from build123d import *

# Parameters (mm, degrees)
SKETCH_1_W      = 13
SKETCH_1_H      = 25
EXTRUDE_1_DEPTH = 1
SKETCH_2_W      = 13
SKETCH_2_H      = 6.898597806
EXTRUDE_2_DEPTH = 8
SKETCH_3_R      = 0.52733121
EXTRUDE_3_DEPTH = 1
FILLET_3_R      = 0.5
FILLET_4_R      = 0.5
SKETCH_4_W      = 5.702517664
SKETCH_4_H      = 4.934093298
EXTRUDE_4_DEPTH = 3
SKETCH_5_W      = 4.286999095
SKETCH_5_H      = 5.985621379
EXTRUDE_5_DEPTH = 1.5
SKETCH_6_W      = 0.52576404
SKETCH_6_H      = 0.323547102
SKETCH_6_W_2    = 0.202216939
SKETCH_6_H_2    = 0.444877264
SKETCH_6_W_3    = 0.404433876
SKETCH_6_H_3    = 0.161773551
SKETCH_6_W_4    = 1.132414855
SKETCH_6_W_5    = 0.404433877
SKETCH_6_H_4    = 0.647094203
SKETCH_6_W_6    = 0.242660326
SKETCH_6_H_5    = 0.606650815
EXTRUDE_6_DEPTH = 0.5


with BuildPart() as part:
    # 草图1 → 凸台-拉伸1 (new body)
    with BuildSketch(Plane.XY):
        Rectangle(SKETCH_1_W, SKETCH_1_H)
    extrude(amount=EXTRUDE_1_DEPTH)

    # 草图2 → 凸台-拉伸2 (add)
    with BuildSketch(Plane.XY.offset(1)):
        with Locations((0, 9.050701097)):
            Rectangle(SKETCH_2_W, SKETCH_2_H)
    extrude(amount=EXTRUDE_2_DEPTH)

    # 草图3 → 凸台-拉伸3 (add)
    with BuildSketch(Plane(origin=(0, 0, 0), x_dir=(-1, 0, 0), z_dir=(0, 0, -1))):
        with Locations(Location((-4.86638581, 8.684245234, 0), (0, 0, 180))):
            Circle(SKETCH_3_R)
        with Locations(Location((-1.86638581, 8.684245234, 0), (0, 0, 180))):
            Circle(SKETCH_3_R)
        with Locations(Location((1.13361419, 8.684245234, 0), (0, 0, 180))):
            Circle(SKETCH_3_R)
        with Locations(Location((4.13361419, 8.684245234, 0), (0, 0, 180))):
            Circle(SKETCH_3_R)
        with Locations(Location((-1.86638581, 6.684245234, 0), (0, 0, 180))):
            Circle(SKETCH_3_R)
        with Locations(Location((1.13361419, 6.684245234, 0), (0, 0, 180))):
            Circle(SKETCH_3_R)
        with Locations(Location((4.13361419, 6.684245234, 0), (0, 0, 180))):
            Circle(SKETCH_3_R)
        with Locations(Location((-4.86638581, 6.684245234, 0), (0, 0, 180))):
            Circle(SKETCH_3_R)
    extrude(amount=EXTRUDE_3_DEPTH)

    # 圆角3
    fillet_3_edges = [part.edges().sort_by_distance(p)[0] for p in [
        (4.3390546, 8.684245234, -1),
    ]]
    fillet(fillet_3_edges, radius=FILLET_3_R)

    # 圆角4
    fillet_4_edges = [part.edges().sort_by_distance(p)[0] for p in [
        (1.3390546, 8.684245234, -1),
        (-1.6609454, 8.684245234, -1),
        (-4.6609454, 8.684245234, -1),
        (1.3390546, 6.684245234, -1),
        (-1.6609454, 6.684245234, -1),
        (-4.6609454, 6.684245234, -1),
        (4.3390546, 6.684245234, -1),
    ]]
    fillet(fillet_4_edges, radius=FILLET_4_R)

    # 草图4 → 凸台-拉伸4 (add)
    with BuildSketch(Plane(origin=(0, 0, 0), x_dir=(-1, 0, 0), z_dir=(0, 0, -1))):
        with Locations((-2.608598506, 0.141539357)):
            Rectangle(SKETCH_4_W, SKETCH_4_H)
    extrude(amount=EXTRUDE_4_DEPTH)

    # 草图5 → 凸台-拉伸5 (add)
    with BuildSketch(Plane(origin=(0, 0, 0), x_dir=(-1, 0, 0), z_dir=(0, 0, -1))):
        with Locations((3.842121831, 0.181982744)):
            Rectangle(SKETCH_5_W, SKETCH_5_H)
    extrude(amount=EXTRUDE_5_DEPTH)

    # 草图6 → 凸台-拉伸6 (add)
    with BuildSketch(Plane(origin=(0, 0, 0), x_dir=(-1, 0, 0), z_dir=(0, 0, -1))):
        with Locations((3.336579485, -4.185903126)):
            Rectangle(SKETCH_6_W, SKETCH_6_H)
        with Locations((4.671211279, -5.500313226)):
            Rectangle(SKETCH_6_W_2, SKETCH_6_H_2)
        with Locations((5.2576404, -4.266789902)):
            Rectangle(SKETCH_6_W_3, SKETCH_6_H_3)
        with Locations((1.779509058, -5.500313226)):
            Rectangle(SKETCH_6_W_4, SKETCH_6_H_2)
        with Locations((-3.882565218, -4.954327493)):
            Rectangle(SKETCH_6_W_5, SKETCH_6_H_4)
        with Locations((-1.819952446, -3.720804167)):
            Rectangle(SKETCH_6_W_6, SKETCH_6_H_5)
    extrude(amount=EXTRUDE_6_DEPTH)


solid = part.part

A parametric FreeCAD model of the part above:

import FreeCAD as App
import Part
import Sketcher

V = App.Vector


def edges_at(feature, points):
    """Names of the edges that pass closest to the given points."""
    edges = feature.Shape.Edges
    near = lambda p: min(range(len(edges)), key=lambda i: edges[i].distToShape(Part.Vertex(*p))[0])
    return sorted({f"Edge{near(p) + 1}" for p in points})


def add_polygon(sketch, points):
    """Adds a closed chain of lines whose ends are joined by coincident constraints."""
    first, n = sketch.GeometryCount, len(points)
    for a, b in zip(points, points[1:] + points[:1]):
        sketch.addGeometry(Part.LineSegment(App.Vector(*a, 0), App.Vector(*b, 0)), False)
    for i in range(n):
        sketch.addConstraint(Sketcher.Constraint("Coincident", first + i, 2, first + (i + 1) % n, 1))

doc = App.newDocument("Part")
body = doc.addObject("PartDesign::Body", "Body")

sketch1 = body.newObject("Sketcher::SketchObject", "Sketch")
sketch1.AttachmentSupport = (doc.getObject("XY_Plane"), [""])
sketch1.MapMode = "FlatFace"
add_polygon(sketch1, [(-6, 12), (-6, -12), (6, -12), (6, 12)])
sketch1.addConstraint(Sketcher.Constraint("Vertical", 0))
sketch1.addConstraint(Sketcher.Constraint("Horizontal", 1))
sketch1.addConstraint(Sketcher.Constraint("Vertical", 2))
sketch1.addConstraint(Sketcher.Constraint("Horizontal", 3))
sketch1.addConstraint(Sketcher.Constraint("Symmetric", 0, 2, 2, 2, -1, 1))
sketch1.addConstraint(Sketcher.Constraint("DistanceX", 1, 1, 1, 2, 13.0))
sketch1.addConstraint(Sketcher.Constraint("DistanceY", 0, 2, 0, 1, 25.0))
pad1 = body.newObject("PartDesign::Pad", "Pad")
pad1.Profile = sketch1
pad1.Length = 1

sketch2 = body.newObject("Sketcher::SketchObject", "Sketch001")
sketch2.AttachmentSupport = (doc.getObject("XY_Plane"), [""])
sketch2.MapMode = "FlatFace"
sketch2.AttachmentOffset = App.Placement(V(0, 0, 1), App.Rotation())
add_polygon(sketch2, [(-6, 12), (-6, 6), (6, 6), (6, 12)])
sketch2.addConstraint(Sketcher.Constraint("Vertical", 0))
sketch2.addConstraint(Sketcher.Constraint("Horizontal", 1))
sketch2.addConstraint(Sketcher.Constraint("Vertical", 2))
sketch2.addConstraint(Sketcher.Constraint("Horizontal", 3))
sketch2.addConstraint(Sketcher.Constraint("DistanceX", 1, 1, 1, 2, 13.0))
sketch2.addConstraint(Sketcher.Constraint("DistanceX", 0, 2, -1, 1, 6.5))
sketch2.addConstraint(Sketcher.Constraint("DistanceY", -1, 1, 2, 2, 12.5))
sketch2.addConstraint(Sketcher.Constraint("DistanceY", 0, 2, 0, 1, 6.898598))
pad2 = body.newObject("PartDesign::Pad", "Pad001")
pad2.Profile = sketch2
pad2.Length = 8

sketch3 = body.newObject("Sketcher::SketchObject", "Sketch002")
sketch3.AttachmentSupport = (doc.getObject("XY_Plane"), [""])
sketch3.MapMode = "FlatFace"
sketch3.addGeometry(Part.Circle(V(4.9, 8.7, 0), V(0, 0, 1), 0.5), False)
sketch3.addGeometry(Part.Circle(V(1.9, 8.7, 0), V(0, 0, 1), 0.5), False)
sketch3.addGeometry(Part.Circle(V(-1.1, 8.7, 0), V(0, 0, 1), 0.5), False)
sketch3.addGeometry(Part.Circle(V(-4.1, 8.7, 0), V(0, 0, 1), 0.5), False)
sketch3.addGeometry(Part.Circle(V(1.9, 6.7, 0), V(0, 0, 1), 0.5), False)
sketch3.addGeometry(Part.Circle(V(-1.1, 6.7, 0), V(0, 0, 1), 0.5), False)
sketch3.addGeometry(Part.Circle(V(-4.1, 6.7, 0), V(0, 0, 1), 0.5), False)
sketch3.addGeometry(Part.Circle(V(4.9, 6.7, 0), V(0, 0, 1), 0.5), False)
sketch3.addConstraint(Sketcher.Constraint("Equal", 0, 1))
sketch3.addConstraint(Sketcher.Constraint("Equal", 1, 2))
sketch3.addConstraint(Sketcher.Constraint("Equal", 2, 3))
sketch3.addConstraint(Sketcher.Constraint("Equal", 3, 4))
sketch3.addConstraint(Sketcher.Constraint("Equal", 4, 5))
sketch3.addConstraint(Sketcher.Constraint("Equal", 5, 6))
sketch3.addConstraint(Sketcher.Constraint("Equal", 6, 7))
sketch3.addConstraint(Sketcher.Constraint("Horizontal", 0, 3, 1, 3))
sketch3.addConstraint(Sketcher.Constraint("Horizontal", 1, 3, 2, 3))
sketch3.addConstraint(Sketcher.Constraint("Horizontal", 2, 3, 3, 3))
sketch3.addConstraint(Sketcher.Constraint("Horizontal", 4, 3, 5, 3))
sketch3.addConstraint(Sketcher.Constraint("Horizontal", 5, 3, 6, 3))
sketch3.addConstraint(Sketcher.Constraint("Horizontal", 6, 3, 7, 3))
sketch3.addConstraint(Sketcher.Constraint("Vertical", 1, 3, 4, 3))
sketch3.addConstraint(Sketcher.Constraint("Vertical", 2, 3, 5, 3))
sketch3.addConstraint(Sketcher.Constraint("Vertical", 3, 3, 6, 3))
sketch3.addConstraint(Sketcher.Constraint("Vertical", 0, 3, 7, 3))
sketch3.addConstraint(Sketcher.Constraint("DistanceX", 1, 3, 0, 3, 3.0))
sketch3.addConstraint(Sketcher.Constraint("DistanceX", 2, 3, 1, 3, 3.0))
sketch3.addConstraint(Sketcher.Constraint("DistanceX", 3, 3, 2, 3, 3.0))
sketch3.addConstraint(Sketcher.Constraint("DistanceY", 4, 3, 1, 3, 2.0))
sketch3.addConstraint(Sketcher.Constraint("Diameter", 0, 1.054662))
sketch3.addConstraint(Sketcher.Constraint("DistanceX", -1, 1, 0, 3, 4.866386))
sketch3.addConstraint(Sketcher.Constraint("DistanceY", -1, 1, 0, 3, 8.684245))
pad3 = body.newObject("PartDesign::Pad", "Pad002")
pad3.Profile = sketch3
pad3.Length = 1
pad3.Reversed = True
doc.recompute()

fillet = body.newObject("PartDesign::Fillet", "Fillet")
fillet.Base = (pad3, edges_at(pad3, [(4.339, 8.684, -1)]))
fillet.Radius = 0.5
doc.recompute()

fillet2 = body.newObject("PartDesign::Fillet", "Fillet001")
fillet2.Base = (fillet, edges_at(fillet, [
    (1.339, 8.684, -1),
    (-1.661, 8.684, -1),
    (-4.661, 8.684, -1),
    (1.339, 6.684, -1),
    (-1.661, 6.684, -1),
    (-4.661, 6.684, -1),
    (4.339, 6.684, -1),
]))
fillet2.Radius = 0.5

sketch4 = body.newObject("Sketcher::SketchObject", "Sketch003")
sketch4.AttachmentSupport = (doc.getObject("XY_Plane"), [""])
sketch4.MapMode = "FlatFace"
add_polygon(sketch4, [(5.5, 2.6), (5.5, -2.3), (-0.2, -2.3), (-0.2, 2.6)])
sketch4.addConstraint(Sketcher.Constraint("Vertical", 0))
sketch4.addConstraint(Sketcher.Constraint("Horizontal", 1))
sketch4.addConstraint(Sketcher.Constraint("Vertical", 2))
sketch4.addConstraint(Sketcher.Constraint("Horizontal", 3))
sketch4.addConstraint(Sketcher.Constraint("DistanceX", 1, 2, 1, 1, 5.702518))
sketch4.addConstraint(Sketcher.Constraint("DistanceY", 0, 2, 0, 1, 4.934093))
sketch4.addConstraint(Sketcher.Constraint("DistanceX", 1, 2, -1, 1, 0.24266))
sketch4.addConstraint(Sketcher.Constraint("DistanceY", 0, 2, -1, 1, 2.325507))
pad4 = body.newObject("PartDesign::Pad", "Pad003")
pad4.Profile = sketch4
pad4.Length = 3
pad4.Reversed = True

sketch5 = body.newObject("Sketcher::SketchObject", "Sketch004")
sketch5.AttachmentSupport = (doc.getObject("XY_Plane"), [""])
sketch5.MapMode = "FlatFace"
add_polygon(sketch5, [(-1.7, 3.2), (-1.7, -2.8), (-6, -2.8), (-6, 3.2)])
sketch5.addConstraint(Sketcher.Constraint("Vertical", 0))
sketch5.addConstraint(Sketcher.Constraint("Horizontal", 1))
sketch5.addConstraint(Sketcher.Constraint("Vertical", 2))
sketch5.addConstraint(Sketcher.Constraint("Horizontal", 3))
sketch5.addConstraint(Sketcher.Constraint("DistanceX", 1, 2, 1, 1, 4.286999))
sketch5.addConstraint(Sketcher.Constraint("DistanceY", 0, 2, 0, 1, 5.985621))
sketch5.addConstraint(Sketcher.Constraint("DistanceX", 1, 2, -1, 1, 5.985621))
sketch5.addConstraint(Sketcher.Constraint("DistanceY", 0, 2, -1, 1, 2.810828))
pad5 = body.newObject("PartDesign::Pad", "Pad004")
pad5.Profile = sketch5
pad5.Length = 1.5
pad5.Reversed = True

sketch6 = body.newObject("Sketcher::SketchObject", "Sketch005")
sketch6.AttachmentSupport = (doc.getObject("XY_Plane"), [""])
sketch6.MapMode = "FlatFace"
add_polygon(sketch6, [(-3.07, -4.02), (-3.07, -4.35), (-3.6, -4.35), (-3.6, -4.02)])
add_polygon(sketch6, [(-4.57, -5.28), (-4.57, -5.72), (-4.77, -5.72), (-4.77, -5.28)])
add_polygon(sketch6, [(-5.06, -4.19), (-5.06, -4.35), (-5.46, -4.35), (-5.46, -4.19)])
add_polygon(sketch6, [(-1.21, -5.28), (-1.21, -5.72), (-2.35, -5.72), (-2.35, -5.28)])
add_polygon(sketch6, [(4.08, -4.63), (4.08, -5.28), (3.68, -5.28), (3.68, -4.63)])
add_polygon(sketch6, [(1.94, -3.42), (1.94, -4.02), (1.7, -4.02), (1.7, -3.42)])
sketch6.addConstraint(Sketcher.Constraint("Vertical", 0))
sketch6.addConstraint(Sketcher.Constraint("Horizontal", 1))
sketch6.addConstraint(Sketcher.Constraint("Vertical", 2))
sketch6.addConstraint(Sketcher.Constraint("Horizontal", 3))
sketch6.addConstraint(Sketcher.Constraint("Vertical", 4))
sketch6.addConstraint(Sketcher.Constraint("Horizontal", 5))
sketch6.addConstraint(Sketcher.Constraint("Vertical", 6))
sketch6.addConstraint(Sketcher.Constraint("Horizontal", 7))
sketch6.addConstraint(Sketcher.Constraint("Vertical", 8))
sketch6.addConstraint(Sketcher.Constraint("Horizontal", 9))
sketch6.addConstraint(Sketcher.Constraint("Vertical", 10))
sketch6.addConstraint(Sketcher.Constraint("Horizontal", 11))
sketch6.addConstraint(Sketcher.Constraint("Vertical", 12))
sketch6.addConstraint(Sketcher.Constraint("Horizontal", 13))
sketch6.addConstraint(Sketcher.Constraint("Vertical", 14))
sketch6.addConstraint(Sketcher.Constraint("Horizontal", 15))
sketch6.addConstraint(Sketcher.Constraint("Vertical", 16))
sketch6.addConstraint(Sketcher.Constraint("Horizontal", 17))
sketch6.addConstraint(Sketcher.Constraint("Vertical", 18))
sketch6.addConstraint(Sketcher.Constraint("Horizontal", 19))
sketch6.addConstraint(Sketcher.Constraint("Vertical", 20))
sketch6.addConstraint(Sketcher.Constraint("Horizontal", 21))
sketch6.addConstraint(Sketcher.Constraint("Vertical", 22))
sketch6.addConstraint(Sketcher.Constraint("Horizontal", 23))
sketch6.addConstraint(Sketcher.Constraint("Horizontal", 1, 2, 8, 2))
sketch6.addConstraint(Sketcher.Constraint("Horizontal", 5, 2, 12, 2))
sketch6.addConstraint(Sketcher.Constraint("Horizontal", 7, 2, 14, 2))
sketch6.addConstraint(Sketcher.Constraint("Horizontal", 15, 2, 16, 2))
sketch6.addConstraint(Sketcher.Constraint("Horizontal", 3, 2, 20, 2))
sketch6.addConstraint(Sketcher.Constraint("Equal", 11, 17))
sketch6.addConstraint(Sketcher.Constraint("DistanceX", 21, 2, 21, 1, 0.24266))
sketch6.addConstraint(Sketcher.Constraint("DistanceY", 20, 2, 20, 1, 0.606651))
sketch6.addConstraint(Sketcher.Constraint("DistanceX", 12, 2, -1, 1, 1.213302))
sketch6.addConstraint(Sketcher.Constraint("DistanceX", 4, 2, 12, 2, 3.356801))
sketch6.addConstraint(Sketcher.Constraint("DistanceX", 14, 2, 16, 2, 6.430499))
sketch6.addConstraint(Sketcher.Constraint("DistanceX", 20, 2, 19, 2, 2.1435))
sketch6.addConstraint(Sketcher.Constraint("DistanceY", 18, 2, 22, 2, 1.213302))
sketch6.addConstraint(Sketcher.Constraint("DistanceX", 1, 2, 1, 1, 0.525764))
sketch6.addConstraint(Sketcher.Constraint("DistanceX", 5, 2, 5, 1, 0.202217))
sketch6.addConstraint(Sketcher.Constraint("DistanceX", 9, 2, 9, 1, 0.404434))
sketch6.addConstraint(Sketcher.Constraint("DistanceX", 13, 2, 13, 1, 1.132415))
sketch6.addConstraint(Sketcher.Constraint("DistanceY", 0, 2, 0, 1, 0.323547))
sketch6.addConstraint(Sketcher.Constraint("DistanceY", 4, 2, 4, 1, 0.444877))
sketch6.addConstraint(Sketcher.Constraint("DistanceY", 8, 2, 8, 1, 0.161774))
sketch6.addConstraint(Sketcher.Constraint("DistanceY", 16, 2, 16, 1, 0.647094))
sketch6.addConstraint(Sketcher.Constraint("DistanceX", 1, 2, -1, 1, 3.599462))
sketch6.addConstraint(Sketcher.Constraint("DistanceY", 2, 2, -1, 1, 4.02413))
sketch6.addConstraint(Sketcher.Constraint("DistanceX", 8, 2, 7, 2, 0.485321))
pad6 = body.newObject("PartDesign::Pad", "Pad005")
pad6.Profile = sketch6
pad6.Length = 0.5
pad6.Reversed = True

doc.recompute()
